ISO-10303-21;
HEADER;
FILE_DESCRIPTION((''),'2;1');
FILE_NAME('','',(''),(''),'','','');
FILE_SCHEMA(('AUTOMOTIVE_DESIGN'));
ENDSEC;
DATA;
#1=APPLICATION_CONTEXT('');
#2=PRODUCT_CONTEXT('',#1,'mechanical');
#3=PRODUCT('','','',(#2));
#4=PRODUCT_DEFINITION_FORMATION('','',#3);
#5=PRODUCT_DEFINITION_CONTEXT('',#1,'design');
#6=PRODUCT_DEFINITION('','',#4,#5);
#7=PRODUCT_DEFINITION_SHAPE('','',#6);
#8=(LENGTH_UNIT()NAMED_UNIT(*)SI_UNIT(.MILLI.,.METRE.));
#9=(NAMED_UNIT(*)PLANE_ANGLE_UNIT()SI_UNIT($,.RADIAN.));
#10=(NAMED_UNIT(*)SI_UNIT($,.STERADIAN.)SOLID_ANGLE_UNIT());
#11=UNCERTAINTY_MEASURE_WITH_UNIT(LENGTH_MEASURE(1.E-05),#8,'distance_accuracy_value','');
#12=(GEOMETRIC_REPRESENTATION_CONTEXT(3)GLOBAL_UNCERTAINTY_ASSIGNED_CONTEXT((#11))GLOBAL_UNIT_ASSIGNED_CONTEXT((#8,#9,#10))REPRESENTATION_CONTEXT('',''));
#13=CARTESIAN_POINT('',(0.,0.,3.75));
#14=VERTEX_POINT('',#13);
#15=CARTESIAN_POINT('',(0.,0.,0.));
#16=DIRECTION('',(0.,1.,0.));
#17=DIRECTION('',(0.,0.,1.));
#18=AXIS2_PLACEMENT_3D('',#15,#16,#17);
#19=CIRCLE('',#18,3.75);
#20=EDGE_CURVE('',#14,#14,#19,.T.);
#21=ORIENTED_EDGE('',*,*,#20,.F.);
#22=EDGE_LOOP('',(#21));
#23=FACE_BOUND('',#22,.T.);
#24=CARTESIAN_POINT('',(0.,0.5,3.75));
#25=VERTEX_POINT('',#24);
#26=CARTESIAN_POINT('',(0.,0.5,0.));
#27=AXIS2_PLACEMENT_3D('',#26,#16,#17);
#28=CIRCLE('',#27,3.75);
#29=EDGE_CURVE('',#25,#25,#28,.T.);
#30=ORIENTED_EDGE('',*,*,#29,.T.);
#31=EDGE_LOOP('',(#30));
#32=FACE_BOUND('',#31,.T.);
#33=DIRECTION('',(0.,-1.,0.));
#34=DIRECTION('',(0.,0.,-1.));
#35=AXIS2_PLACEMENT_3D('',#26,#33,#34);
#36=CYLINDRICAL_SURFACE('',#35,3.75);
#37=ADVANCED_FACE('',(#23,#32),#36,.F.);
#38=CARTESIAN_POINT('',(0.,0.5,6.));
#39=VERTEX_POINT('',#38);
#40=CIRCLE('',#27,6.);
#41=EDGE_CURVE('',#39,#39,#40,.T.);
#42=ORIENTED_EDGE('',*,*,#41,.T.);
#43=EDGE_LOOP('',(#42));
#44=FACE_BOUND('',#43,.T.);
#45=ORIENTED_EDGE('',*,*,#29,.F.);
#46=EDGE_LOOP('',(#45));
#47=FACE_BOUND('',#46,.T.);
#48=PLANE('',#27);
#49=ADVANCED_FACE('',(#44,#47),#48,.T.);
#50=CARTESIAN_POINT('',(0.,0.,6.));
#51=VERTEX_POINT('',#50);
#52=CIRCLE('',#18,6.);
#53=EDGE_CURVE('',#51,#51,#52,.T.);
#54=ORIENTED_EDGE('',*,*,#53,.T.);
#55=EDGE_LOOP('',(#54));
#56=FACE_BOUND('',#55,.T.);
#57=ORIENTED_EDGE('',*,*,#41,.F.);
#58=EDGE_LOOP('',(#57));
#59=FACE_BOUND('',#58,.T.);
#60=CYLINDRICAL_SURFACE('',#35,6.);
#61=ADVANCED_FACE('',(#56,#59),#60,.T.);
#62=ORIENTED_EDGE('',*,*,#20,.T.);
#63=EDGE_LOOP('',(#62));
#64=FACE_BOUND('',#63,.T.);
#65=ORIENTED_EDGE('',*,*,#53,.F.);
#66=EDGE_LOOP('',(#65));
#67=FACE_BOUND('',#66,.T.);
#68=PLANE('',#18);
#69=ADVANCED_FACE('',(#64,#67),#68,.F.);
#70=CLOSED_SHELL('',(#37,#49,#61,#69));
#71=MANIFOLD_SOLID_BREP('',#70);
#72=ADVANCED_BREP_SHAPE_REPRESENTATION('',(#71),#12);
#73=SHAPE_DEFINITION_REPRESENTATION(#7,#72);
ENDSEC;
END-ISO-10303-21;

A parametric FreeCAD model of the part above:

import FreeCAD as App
import Part
import Sketcher
from FreeCAD import Vector
Q = App.Units.Quantity

doc = App.newDocument("Part")
body = doc.addObject("PartDesign::Body", "Body")

# Sketch on XZ plane
sketch1 = body.newObject("Sketcher::SketchObject", "Sketch")
sketch1.AttachmentSupport = (doc.getObject("XZ_Plane"), [""])
sketch1.MapMode = "FlatFace"
sketch1.addGeometry(Part.Circle(Vector(0, 0, 0), Vector(0, 0, 1), 6), False)
sketch1.addGeometry(Part.Circle(Vector(0, 0, 0), Vector(0, 0, 1), 3.8), False)
sketch1.addConstraint(Sketcher.Constraint("Coincident", 0, 3, -1, 1))
sketch1.addConstraint(Sketcher.Constraint("Coincident", 1, 3, -1, 1))
sketch1.addConstraint(Sketcher.Constraint("Diameter", 0, Q("12 mm")))
sketch1.addConstraint(Sketcher.Constraint("Diameter", 1, Q("7.5 mm")))
pad1 = body.newObject("PartDesign::Pad", "Pad")
pad1.Profile = sketch1
pad1.Length = 0.5
pad1.Reversed = True

doc.recompute()
